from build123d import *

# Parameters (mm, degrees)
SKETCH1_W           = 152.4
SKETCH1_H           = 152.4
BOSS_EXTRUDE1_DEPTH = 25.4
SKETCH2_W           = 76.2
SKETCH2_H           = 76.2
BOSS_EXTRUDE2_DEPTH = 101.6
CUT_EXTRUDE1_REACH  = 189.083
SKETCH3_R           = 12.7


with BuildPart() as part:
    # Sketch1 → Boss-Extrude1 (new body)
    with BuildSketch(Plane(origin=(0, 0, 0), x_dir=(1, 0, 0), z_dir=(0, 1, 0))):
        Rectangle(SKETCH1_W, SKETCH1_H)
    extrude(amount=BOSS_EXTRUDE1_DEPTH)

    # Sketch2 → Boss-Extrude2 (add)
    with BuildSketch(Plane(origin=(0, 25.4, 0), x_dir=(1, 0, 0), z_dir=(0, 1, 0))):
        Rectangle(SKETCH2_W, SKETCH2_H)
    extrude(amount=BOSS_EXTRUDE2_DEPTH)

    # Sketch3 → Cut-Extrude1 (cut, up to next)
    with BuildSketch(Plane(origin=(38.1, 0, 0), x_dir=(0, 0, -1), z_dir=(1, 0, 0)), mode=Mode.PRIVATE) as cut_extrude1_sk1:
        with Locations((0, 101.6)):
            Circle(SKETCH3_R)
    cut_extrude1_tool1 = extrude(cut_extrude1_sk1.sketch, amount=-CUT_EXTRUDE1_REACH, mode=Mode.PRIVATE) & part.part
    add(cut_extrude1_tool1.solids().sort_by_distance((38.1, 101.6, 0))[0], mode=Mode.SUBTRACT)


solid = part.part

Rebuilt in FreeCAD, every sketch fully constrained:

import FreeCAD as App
import Part
import Sketcher
Q = App.Units.Quantity

doc = App.newDocument("Part")
body = doc.addObject("PartDesign::Body", "Body")

sketch1 = body.newObject("Sketcher::SketchObject", "Sketch")
sketch1.AttachmentSupport = (doc.getObject("XZ_Plane"), [""])
sketch1.MapMode = "FlatFace"
sketch1.addGeometry(Part.LineSegment(App.Vector(-76, -76, 0), App.Vector(-76, 76, 0)), False)
sketch1.addGeometry(Part.LineSegment(App.Vector(-76, 76, 0), App.Vector(76, 76, 0)), False)
sketch1.addGeometry(Part.LineSegment(App.Vector(76, 76, 0), App.Vector(76, -76, 0)), False)
sketch1.addGeometry(Part.LineSegment(App.Vector(76, -76, 0), App.Vector(-76, -76, 0)), False)
sketch1.addConstraint(Sketcher.Constraint("Coincident", 0, 2, 1, 1))
sketch1.addConstraint(Sketcher.Constraint("Coincident", 1, 2, 2, 1))
sketch1.addConstraint(Sketcher.Constraint("Coincident", 2, 2, 3, 1))
sketch1.addConstraint(Sketcher.Constraint("Coincident", 3, 2, 0, 1))
sketch1.addConstraint(Sketcher.Constraint("Vertical", 0))
sketch1.addConstraint(Sketcher.Constraint("Horizontal", 1))
sketch1.addConstraint(Sketcher.Constraint("Vertical", 2))
sketch1.addConstraint(Sketcher.Constraint("Horizontal", 3))
sketch1.addConstraint(Sketcher.Constraint("Symmetric", 0, 2, 2, 2, -1, 1))
sketch1.addConstraint(Sketcher.Constraint("Equal", 3, 0))
sketch1.addConstraint(Sketcher.Constraint("DistanceX", 1, 1, 1, 2, Q("6 in")))
pad1 = body.newObject("PartDesign::Pad", "Pad")
pad1.Profile = sketch1
pad1.Length = Q("1 in")
pad1.Reversed = True

sketch2 = body.newObject("Sketcher::SketchObject", "Sketch001")
sketch2.AttachmentSupport = (doc.getObject("XZ_Plane"), [""])
sketch2.MapMode = "FlatFace"
sketch2.AttachmentOffset = App.Placement(App.Vector(0, 0, -1 * 25.4), App.Rotation())
sketch2.addGeometry(Part.LineSegment(App.Vector(-38, -38, 0), App.Vector(-38, 38, 0)), False)
sketch2.addGeometry(Part.LineSegment(App.Vector(-38, 38, 0), App.Vector(38, 38, 0)), False)
sketch2.addGeometry(Part.LineSegment(App.Vector(38, 38, 0), App.Vector(38, -38, 0)), False)
sketch2.addGeometry(Part.LineSegment(App.Vector(38, -38, 0), App.Vector(-38, -38, 0)), False)
sketch2.addConstraint(Sketcher.Constraint("Coincident", 0, 2, 1, 1))
sketch2.addConstraint(Sketcher.Constraint("Coincident", 1, 2, 2, 1))
sketch2.addConstraint(Sketcher.Constraint("Coincident", 2, 2, 3, 1))
sketch2.addConstraint(Sketcher.Constraint("Coincident", 3, 2, 0, 1))
sketch2.addConstraint(Sketcher.Constraint("Vertical", 0))
sketch2.addConstraint(Sketcher.Constraint("Horizontal", 1))
sketch2.addConstraint(Sketcher.Constraint("Vertical", 2))
sketch2.addConstraint(Sketcher.Constraint("Horizontal", 3))
sketch2.addConstraint(Sketcher.Constraint("Symmetric", 0, 2, 2, 2, -1, 1))
sketch2.addConstraint(Sketcher.Constraint("Equal", 3, 0))
sketch2.addConstraint(Sketcher.Constraint("DistanceX", 1, 1, 1, 2, Q("3 in")))
pad2 = body.newObject("PartDesign::Pad", "Pad001")
pad2.Profile = sketch2
pad2.Length = Q("4 in")
pad2.Reversed = True

sketch3 = body.newObject("Sketcher::SketchObject", "Sketch002")
sketch3.AttachmentSupport = (doc.getObject("YZ_Plane"), [""])
sketch3.MapMode = "FlatFace"
sketch3.AttachmentOffset = App.Placement(App.Vector(0, 0, 1.5 * 25.4), App.Rotation())
sketch3.addGeometry(Part.Circle(App.Vector(102, 0, 0), App.Vector(0, 0, 1), 13), False)
sketch3.addConstraint(Sketcher.Constraint("PointOnObject", 0, 3, -1))
sketch3.addConstraint(Sketcher.Constraint("Diameter", 0, Q("1 in")))
sketch3.addConstraint(Sketcher.Constraint("DistanceX", -1, 1, 0, 3, Q("4 in")))
pocket1 = body.newObject("PartDesign::Pocket", "Pocket")
pocket1.Profile = sketch3
pocket1.Type = "UpToFirst"

doc.recompute()
